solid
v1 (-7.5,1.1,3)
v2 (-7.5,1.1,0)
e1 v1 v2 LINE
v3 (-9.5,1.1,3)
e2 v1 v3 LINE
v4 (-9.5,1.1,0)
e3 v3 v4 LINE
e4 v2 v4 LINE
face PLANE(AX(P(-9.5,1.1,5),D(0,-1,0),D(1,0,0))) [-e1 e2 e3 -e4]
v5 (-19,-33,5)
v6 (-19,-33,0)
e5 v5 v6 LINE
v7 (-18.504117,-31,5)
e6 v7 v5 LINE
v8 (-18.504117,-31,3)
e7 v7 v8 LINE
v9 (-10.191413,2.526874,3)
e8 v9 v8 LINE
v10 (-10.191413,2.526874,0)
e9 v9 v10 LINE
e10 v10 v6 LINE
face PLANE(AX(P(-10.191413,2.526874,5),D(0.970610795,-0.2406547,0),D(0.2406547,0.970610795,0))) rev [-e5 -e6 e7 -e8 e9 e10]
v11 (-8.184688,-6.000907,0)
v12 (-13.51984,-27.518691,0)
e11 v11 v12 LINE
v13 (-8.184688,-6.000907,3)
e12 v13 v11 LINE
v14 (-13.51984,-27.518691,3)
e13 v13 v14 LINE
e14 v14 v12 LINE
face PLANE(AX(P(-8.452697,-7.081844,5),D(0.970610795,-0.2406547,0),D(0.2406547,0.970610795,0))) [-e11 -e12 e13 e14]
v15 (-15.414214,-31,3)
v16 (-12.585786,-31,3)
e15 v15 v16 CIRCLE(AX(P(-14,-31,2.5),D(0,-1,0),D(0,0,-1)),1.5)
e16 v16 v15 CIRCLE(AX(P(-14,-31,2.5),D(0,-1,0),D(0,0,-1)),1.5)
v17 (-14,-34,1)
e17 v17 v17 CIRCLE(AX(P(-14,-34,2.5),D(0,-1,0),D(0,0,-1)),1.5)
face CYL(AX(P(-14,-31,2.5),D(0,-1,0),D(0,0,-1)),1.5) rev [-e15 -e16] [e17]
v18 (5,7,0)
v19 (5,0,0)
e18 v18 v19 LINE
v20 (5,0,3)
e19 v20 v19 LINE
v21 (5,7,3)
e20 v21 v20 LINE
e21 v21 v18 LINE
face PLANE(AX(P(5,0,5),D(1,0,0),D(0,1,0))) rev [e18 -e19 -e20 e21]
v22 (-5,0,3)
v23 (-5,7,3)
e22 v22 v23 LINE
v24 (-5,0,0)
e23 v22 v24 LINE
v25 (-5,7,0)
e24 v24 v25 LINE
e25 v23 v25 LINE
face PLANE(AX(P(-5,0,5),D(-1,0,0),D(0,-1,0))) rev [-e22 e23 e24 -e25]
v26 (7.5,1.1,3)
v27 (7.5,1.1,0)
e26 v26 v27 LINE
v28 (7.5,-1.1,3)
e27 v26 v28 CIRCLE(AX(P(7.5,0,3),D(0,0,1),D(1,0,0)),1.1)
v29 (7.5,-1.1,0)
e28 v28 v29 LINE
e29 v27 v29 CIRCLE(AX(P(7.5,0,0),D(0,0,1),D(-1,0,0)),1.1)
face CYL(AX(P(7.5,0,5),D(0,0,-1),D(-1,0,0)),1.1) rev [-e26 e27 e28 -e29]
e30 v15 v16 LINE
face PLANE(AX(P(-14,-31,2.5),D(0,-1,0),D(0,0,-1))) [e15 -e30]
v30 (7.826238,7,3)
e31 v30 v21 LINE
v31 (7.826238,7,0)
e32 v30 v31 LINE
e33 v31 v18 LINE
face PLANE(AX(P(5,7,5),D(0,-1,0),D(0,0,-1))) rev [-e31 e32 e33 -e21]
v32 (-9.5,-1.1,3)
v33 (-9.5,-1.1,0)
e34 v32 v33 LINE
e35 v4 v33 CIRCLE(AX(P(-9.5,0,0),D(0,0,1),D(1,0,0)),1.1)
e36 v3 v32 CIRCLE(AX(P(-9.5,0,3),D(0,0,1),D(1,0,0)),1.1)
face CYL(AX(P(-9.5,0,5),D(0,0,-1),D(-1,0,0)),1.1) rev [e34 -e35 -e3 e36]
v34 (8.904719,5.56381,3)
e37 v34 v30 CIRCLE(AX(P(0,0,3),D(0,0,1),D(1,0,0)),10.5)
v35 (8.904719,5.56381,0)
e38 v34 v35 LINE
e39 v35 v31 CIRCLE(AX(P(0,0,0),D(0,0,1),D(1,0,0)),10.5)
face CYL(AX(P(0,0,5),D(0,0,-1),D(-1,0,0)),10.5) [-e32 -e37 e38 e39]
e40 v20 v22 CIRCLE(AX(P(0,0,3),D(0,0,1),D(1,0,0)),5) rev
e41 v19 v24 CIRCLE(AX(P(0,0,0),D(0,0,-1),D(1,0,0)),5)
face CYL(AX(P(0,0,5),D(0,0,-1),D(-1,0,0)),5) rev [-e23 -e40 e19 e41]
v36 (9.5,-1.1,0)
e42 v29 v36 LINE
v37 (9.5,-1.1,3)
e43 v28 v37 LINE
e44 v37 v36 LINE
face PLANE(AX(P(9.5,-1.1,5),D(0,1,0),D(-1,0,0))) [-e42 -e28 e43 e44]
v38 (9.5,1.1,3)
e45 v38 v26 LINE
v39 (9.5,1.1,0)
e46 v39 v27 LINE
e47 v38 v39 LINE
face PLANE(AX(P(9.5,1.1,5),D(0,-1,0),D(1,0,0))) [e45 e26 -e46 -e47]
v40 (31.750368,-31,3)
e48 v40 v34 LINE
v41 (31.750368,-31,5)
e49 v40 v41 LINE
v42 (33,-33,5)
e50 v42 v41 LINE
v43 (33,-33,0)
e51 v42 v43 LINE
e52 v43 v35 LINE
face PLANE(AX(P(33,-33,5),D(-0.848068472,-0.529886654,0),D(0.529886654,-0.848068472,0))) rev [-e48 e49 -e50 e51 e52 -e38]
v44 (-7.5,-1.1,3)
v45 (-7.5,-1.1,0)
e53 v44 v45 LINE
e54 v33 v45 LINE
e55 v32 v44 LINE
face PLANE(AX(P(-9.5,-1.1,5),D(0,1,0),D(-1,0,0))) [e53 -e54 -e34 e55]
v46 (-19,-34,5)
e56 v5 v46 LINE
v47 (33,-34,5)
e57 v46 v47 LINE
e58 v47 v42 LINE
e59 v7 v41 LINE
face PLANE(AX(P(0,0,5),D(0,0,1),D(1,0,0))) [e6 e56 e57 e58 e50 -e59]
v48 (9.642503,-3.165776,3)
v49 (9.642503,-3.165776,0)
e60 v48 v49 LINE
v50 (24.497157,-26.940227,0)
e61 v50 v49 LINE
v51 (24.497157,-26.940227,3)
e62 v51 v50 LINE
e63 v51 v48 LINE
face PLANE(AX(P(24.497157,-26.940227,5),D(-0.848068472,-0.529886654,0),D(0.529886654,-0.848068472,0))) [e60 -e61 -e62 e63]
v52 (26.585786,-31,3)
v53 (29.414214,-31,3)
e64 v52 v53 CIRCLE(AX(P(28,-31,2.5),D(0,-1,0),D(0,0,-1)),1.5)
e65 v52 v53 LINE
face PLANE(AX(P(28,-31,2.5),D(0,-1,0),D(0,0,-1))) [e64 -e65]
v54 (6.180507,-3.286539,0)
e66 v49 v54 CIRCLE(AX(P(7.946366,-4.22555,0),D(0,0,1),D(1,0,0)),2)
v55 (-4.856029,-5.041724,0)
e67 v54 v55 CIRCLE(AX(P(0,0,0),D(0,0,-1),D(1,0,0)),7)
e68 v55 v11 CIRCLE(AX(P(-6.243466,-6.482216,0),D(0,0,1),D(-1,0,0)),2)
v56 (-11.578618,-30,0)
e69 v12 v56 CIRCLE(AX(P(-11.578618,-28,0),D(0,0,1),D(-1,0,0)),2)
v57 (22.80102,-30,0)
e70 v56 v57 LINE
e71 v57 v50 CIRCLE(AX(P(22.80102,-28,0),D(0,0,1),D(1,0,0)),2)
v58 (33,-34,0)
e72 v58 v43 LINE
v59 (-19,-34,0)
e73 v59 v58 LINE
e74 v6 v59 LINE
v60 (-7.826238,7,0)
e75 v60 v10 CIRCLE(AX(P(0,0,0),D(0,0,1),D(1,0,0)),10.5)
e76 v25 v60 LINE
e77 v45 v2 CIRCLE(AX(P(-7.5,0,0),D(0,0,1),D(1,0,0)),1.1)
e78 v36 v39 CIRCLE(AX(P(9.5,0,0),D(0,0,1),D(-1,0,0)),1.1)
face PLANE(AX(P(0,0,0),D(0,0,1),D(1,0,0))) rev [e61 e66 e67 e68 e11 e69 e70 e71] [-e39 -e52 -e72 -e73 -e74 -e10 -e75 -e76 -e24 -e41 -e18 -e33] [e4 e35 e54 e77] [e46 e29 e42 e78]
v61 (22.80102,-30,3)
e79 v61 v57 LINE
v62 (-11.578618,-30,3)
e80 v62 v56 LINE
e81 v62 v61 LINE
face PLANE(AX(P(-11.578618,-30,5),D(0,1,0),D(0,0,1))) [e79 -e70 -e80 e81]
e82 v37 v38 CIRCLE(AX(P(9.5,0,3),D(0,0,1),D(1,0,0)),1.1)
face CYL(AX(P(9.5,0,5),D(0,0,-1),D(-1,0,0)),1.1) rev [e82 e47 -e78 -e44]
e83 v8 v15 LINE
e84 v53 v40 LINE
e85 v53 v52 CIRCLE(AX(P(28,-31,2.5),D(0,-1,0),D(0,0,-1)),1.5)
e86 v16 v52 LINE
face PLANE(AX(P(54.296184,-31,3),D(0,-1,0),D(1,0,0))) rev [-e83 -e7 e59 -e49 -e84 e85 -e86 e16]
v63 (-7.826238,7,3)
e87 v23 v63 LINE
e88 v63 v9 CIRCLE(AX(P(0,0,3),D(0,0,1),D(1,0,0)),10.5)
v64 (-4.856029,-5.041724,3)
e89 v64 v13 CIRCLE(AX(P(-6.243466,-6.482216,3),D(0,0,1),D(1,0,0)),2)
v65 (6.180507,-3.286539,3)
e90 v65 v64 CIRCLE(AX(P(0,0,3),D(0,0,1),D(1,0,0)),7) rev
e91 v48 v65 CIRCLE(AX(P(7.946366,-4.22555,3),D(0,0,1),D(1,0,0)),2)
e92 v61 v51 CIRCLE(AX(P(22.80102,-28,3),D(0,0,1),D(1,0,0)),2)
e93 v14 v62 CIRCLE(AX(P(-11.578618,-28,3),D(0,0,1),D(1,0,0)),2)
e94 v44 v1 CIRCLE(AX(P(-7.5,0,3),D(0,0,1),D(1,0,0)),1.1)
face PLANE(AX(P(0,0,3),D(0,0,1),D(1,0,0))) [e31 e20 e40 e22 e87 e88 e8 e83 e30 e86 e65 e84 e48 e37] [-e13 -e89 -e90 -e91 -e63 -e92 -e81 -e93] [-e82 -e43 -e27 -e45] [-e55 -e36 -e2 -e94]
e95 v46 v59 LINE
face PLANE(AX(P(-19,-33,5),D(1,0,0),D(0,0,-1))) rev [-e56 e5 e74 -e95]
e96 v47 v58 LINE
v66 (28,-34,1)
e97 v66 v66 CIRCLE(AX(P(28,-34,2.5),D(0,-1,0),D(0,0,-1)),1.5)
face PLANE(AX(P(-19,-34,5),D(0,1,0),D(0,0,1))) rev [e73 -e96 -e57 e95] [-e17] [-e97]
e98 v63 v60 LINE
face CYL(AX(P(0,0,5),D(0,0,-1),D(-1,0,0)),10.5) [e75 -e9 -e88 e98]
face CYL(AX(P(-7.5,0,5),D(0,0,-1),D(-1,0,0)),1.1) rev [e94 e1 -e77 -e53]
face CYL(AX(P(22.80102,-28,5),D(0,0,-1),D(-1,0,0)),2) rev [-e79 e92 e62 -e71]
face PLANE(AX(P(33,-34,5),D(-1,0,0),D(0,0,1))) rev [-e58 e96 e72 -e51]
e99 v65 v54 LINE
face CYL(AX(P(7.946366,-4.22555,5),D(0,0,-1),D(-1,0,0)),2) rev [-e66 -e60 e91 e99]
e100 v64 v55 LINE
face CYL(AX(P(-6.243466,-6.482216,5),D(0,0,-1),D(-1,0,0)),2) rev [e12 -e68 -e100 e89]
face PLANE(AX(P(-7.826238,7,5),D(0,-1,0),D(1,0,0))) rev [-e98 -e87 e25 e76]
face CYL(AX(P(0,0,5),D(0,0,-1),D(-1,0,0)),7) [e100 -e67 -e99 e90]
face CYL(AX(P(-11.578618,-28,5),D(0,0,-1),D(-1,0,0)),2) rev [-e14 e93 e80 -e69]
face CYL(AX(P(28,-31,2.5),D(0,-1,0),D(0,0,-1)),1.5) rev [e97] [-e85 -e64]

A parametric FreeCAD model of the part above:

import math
import FreeCAD as App
import Part
import Sketcher
from FreeCAD import Vector
Q = App.Units.Quantity


def add_polygon(sketch, points):
    """Adds a closed chain of lines whose ends are joined by coincident constraints."""
    first, n = sketch.GeometryCount, len(points)
    for a, b in zip(points, points[1:] + points[:1]):
        sketch.addGeometry(Part.LineSegment(App.Vector(*a, 0), App.Vector(*b, 0)), False)
    for i in range(n):
        sketch.addConstraint(Sketcher.Constraint("Coincident", first + i, 2, first + (i + 1) % n, 1))

doc = App.newDocument("Part")
params = doc.addObject("Spreadsheet::Sheet", "Params")
for row, (alias, value) in enumerate([
    ("sketch1_radius", "5 mm"),
    ("sketch1_radius2", "2 mm"),
    ("sketch1_radius3", "7 mm"),
    ("sketch1_radius4", "10.5 mm"),
    ("sketch1_radius5", "1.1 mm"),
    ("pad1_length", "5 mm"),
    ("pocket1_length", "2 mm"),
    ("sketch3_diameter", "3 mm"),
    ("pocket2_length", "3 mm"),
], start=1):
    params.set(f"A{row}", alias)
    params.set(f"B{row}", "=" + value)
    params.setAlias(f"B{row}", alias)

body = doc.addObject("PartDesign::Body", "Body")

sketch1 = body.newObject("Sketcher::SketchObject", "Sketch")
sketch1.AttachmentSupport = (doc.getObject("XY_Plane"), [""])
sketch1.MapMode = "FlatFace"
sketch1.addGeometry([
    Part.LineSegment(Vector(-10.191413, 2.526874, 0), Vector(-19, -33, 0)),
    Part.LineSegment(Vector(-19, -33, 0), Vector(-19, -34, 0)),
    Part.LineSegment(Vector(-19, -34, 0), Vector(33, -34, 0)),
    Part.LineSegment(Vector(33, -34, 0), Vector(33, -33, 0)),
    Part.LineSegment(Vector(33, -33, 0), Vector(8.904719, 5.56381, 0)),
    Part.ArcOfCircle(Part.Circle(Vector(0, 0, 0), Vector(0, 0, 1), 10.5), math.radians(31.997797), math.radians(41.810315)),
    Part.LineSegment(Vector(7.826238, 7, 0), Vector(5, 7, 0)),
    Part.LineSegment(Vector(5, 7, 0), Vector(5, 0, 0)),
    Part.ArcOfCircle(Part.Circle(Vector(0, 0, 0), Vector(0, 0, 1), 5), math.radians(180), math.radians(360)),
    Part.LineSegment(Vector(-5, 0, 0), Vector(-5, 7, 0)),
    Part.LineSegment(Vector(-5, 7, 0), Vector(-7.826238, 7, 0)),
    Part.ArcOfCircle(Part.Circle(Vector(0, 0, 0), Vector(0, 0, 1), 10.5), math.radians(138.189685), math.radians(166.074815)),
    Part.LineSegment(Vector(-13.51984, -27.518691, 0), Vector(-8.452697, -7.081844, 0)),
    Part.LineSegment(Vector(-8.452697, -7.081844, 0), Vector(-8.184688, -6.000907, 0)),
    Part.ArcOfCircle(Part.Circle(Vector(-6.243466, -6.482216, 0), Vector(0, 0, 1), 2), math.radians(46.074816), math.radians(166.074815)),
    Part.ArcOfCircle(Part.Circle(Vector(0, 0, 0), Vector(0, 0, 1), 7), math.radians(-133.925185), math.radians(-28.002203)),
    Part.ArcOfCircle(Part.Circle(Vector(7.946366, -4.22555, 0), Vector(0, 0, 1), 2), math.radians(31.997797), math.radians(151.997797)),
    Part.LineSegment(Vector(9.642503, -3.165776, 0), Vector(24.497157, -26.940227, 0)),
    Part.ArcOfCircle(Part.Circle(Vector(22.80102, -28, 0), Vector(0, 0, 1), 2), math.radians(-90), math.radians(31.997797)),
    Part.LineSegment(Vector(22.80102, -30, 0), Vector(-11.578618, -30, 0)),
    Part.ArcOfCircle(Part.Circle(Vector(-11.578618, -28, 0), Vector(0, 0, 1), 2), math.radians(166.074815), math.radians(270)),
    Part.ArcOfCircle(Part.Circle(Vector(-9.5, 0, 0), Vector(0, 0, 1), 1.1), math.radians(90), math.radians(270)),
    Part.LineSegment(Vector(-9.5, 1.1, 0), Vector(-7.5, 1.1, 0)),
    Part.ArcOfCircle(Part.Circle(Vector(-7.5, 0, 0), Vector(0, 0, 1), 1.1), math.radians(-90), math.radians(90)),
    Part.LineSegment(Vector(-7.5, -1.1, 0), Vector(-9.5, -1.1, 0)),
    Part.ArcOfCircle(Part.Circle(Vector(9.5, 0, 0), Vector(0, 0, 1), 1.1), math.radians(-90), math.radians(90)),
    Part.LineSegment(Vector(9.5, -1.1, 0), Vector(7.5, -1.1, 0)),
    Part.ArcOfCircle(Part.Circle(Vector(7.5, 0, 0), Vector(0, 0, 1), 1.1), math.radians(90), math.radians(270)),
    Part.LineSegment(Vector(7.5, 1.1, 0), Vector(9.5, 1.1, 0)),
], False)
sketch1.addConstraint([
    Sketcher.Constraint("Coincident", 0, 2, 1, 1),
    Sketcher.Constraint("Coincident", 1, 2, 2, 1),
    Sketcher.Constraint("Coincident", 2, 2, 3, 1),
    Sketcher.Constraint("Coincident", 3, 2, 4, 1),
    Sketcher.Constraint("Tangent", 4, 2, 5, 1),
    Sketcher.Constraint("Coincident", 5, 2, 6, 1),
    Sketcher.Constraint("Coincident", 6, 2, 7, 1),
    Sketcher.Constraint("Tangent", 7, 2, 8, 2),
    Sketcher.Constraint("Tangent", 8, 1, 9, 1),
    Sketcher.Constraint("Coincident", 9, 2, 10, 1),
    Sketcher.Constraint("Coincident", 10, 2, 11, 1),
    Sketcher.Constraint("Tangent", 11, 2, 0, 1),
    Sketcher.Constraint("Coincident", 12, 2, 13, 1),
    Sketcher.Constraint("Tangent", 13, 2, 14, 2),
    Sketcher.Constraint("Tangent", 14, 1, 15, 1),
    Sketcher.Constraint("Tangent", 15, 2, 16, 2),
    Sketcher.Constraint("Tangent", 16, 1, 17, 1),
    Sketcher.Constraint("Tangent", 17, 2, 18, 2),
    Sketcher.Constraint("Tangent", 18, 1, 19, 1),
    Sketcher.Constraint("Tangent", 19, 2, 20, 2),
    Sketcher.Constraint("Tangent", 20, 1, 12, 1),
    Sketcher.Constraint("Tangent", 21, 1, 22, 1),
    Sketcher.Constraint("Tangent", 22, 2, 23, 2),
    Sketcher.Constraint("Tangent", 23, 1, 24, 1),
    Sketcher.Constraint("Tangent", 24, 2, 21, 2),
    Sketcher.Constraint("Tangent", 25, 1, 26, 1),
    Sketcher.Constraint("Tangent", 26, 2, 27, 2),
    Sketcher.Constraint("Tangent", 27, 1, 28, 1),
    Sketcher.Constraint("Tangent", 28, 2, 25, 2),
    Sketcher.Constraint("Vertical", 1),
    Sketcher.Constraint("Horizontal", 2),
    Sketcher.Constraint("Vertical", 3),
    Sketcher.Constraint("Horizontal", 6),
    Sketcher.Constraint("Vertical", 7),
    Sketcher.Constraint("Vertical", 9),
    Sketcher.Constraint("Horizontal", 10),
    Sketcher.Constraint("Horizontal", 19),
    Sketcher.Constraint("Horizontal", 22),
    Sketcher.Constraint("Horizontal", 24),
    Sketcher.Constraint("Horizontal", 26),
    Sketcher.Constraint("Horizontal", 28),
    Sketcher.Constraint("Coincident", 5, 3, -1, 1),
    Sketcher.Constraint("Coincident", 8, 3, -1, 1),
    Sketcher.Constraint("Coincident", 11, 3, -1, 1),
    Sketcher.Constraint("Coincident", 15, 3, -1, 1),
    Sketcher.Constraint("Equal", 5, 11),
    Sketcher.Constraint("Equal", 14, 16),
    Sketcher.Constraint("Equal", 16, 18),
    Sketcher.Constraint("Equal", 18, 20),
    Sketcher.Constraint("Equal", 23, 25),
    Sketcher.Constraint("Symmetric", 21, 3, 25, 3, -1, 1),
    Sketcher.Constraint("Symmetric", 23, 3, 27, 3, -2),
    Sketcher.Constraint("Parallel", 0, 12),
    Sketcher.Constraint("Parallel", 12, 13),
    Sketcher.Constraint("Parallel", 4, 17),
    Sketcher.Constraint("Horizontal", 0, 2, 3, 2),
    Sketcher.Constraint("Horizontal", 6, 2, 9, 2),
    Sketcher.Constraint("Radius", 8, Q("5 mm")),
    Sketcher.Constraint("Radius", 14, Q("2 mm")),
    Sketcher.Constraint("Radius", 15, Q("7 mm")),
    Sketcher.Constraint("Radius", 5, Q("10.5 mm")),
    Sketcher.Constraint("Radius", 21, Q("1.1 mm")),
    Sketcher.Constraint("DistanceX", 2, 1, 2, 2, Q("52 mm")),
    Sketcher.Constraint("DistanceX", 22, 1, 22, 2, Q("2 mm")),
    Sketcher.Constraint("DistanceY", 1, 2, 1, 1, Q("1 mm")),
    Sketcher.Constraint("DistanceY", 7, 2, 7, 1, Q("7 mm")),
    Sketcher.Constraint("DistanceY", 18, 3, -1, 1, Q("28 mm")),
    Sketcher.Constraint("DistanceX", 0, 2, -1, 1, Q("19 mm")),
    Sketcher.Constraint("DistanceY", 0, 2, -1, 1, Q("33 mm")),
    Sketcher.Constraint("DistanceX", 21, 3, -1, 1, Q("9.5 mm")),
    Sketcher.Constraint("DistanceX", 19, 2, 19, 1, Q("34.379638 mm")),
    Sketcher.Constraint("DistanceY", 16, 3, -1, 1, Q("4.22555 mm")),
    Sketcher.Constraint("DistanceX", 12, 2, 14, 3, Q("2.209231 mm")),
])
sketch1.setExpression("Constraints[57]", "Params.sketch1_radius")
sketch1.setExpression("Constraints[58]", "Params.sketch1_radius2")
sketch1.setExpression("Constraints[59]", "Params.sketch1_radius3")
sketch1.setExpression("Constraints[60]", "Params.sketch1_radius4")
sketch1.setExpression("Constraints[61]", "Params.sketch1_radius5")
pad1 = body.newObject("PartDesign::Pad", "Pad")
pad1.Profile = sketch1
pad1.setExpression("Length", "Params.pad1_length")

sketch2 = body.newObject("Sketcher::SketchObject", "Sketch001")
sketch2.AttachmentSupport = (doc.getObject("XY_Plane"), [""])
sketch2.MapMode = "FlatFace"
sketch2.AttachmentOffset = App.Placement(Vector(0, 0, 5), App.Rotation())
add_polygon(sketch2, [(-51.294482, 22.734325), (-51.294482, -31), (54.296184, -31), (54.296184, 22.734325)])
sketch2.addConstraint([
    Sketcher.Constraint("Vertical", 0),
    Sketcher.Constraint("Horizontal", 1),
    Sketcher.Constraint("Vertical", 2),
    Sketcher.Constraint("Horizontal", 3),
    Sketcher.Constraint("DistanceY", 0, 2, -1, 1, Q("31 mm")),
    Sketcher.Constraint("DistanceX", 1, 1, 1, 2, Q("105.590666 mm")),
    Sketcher.Constraint("DistanceY", 0, 2, 0, 1, Q("53.734325 mm")),
    Sketcher.Constraint("DistanceX", 0, 2, -1, 1, Q("51.294482 mm")),
])
pocket1 = body.newObject("PartDesign::Pocket", "Pocket")
pocket1.Profile = sketch2
pocket1.setExpression("Length", "Params.pocket1_length")

sketch3 = body.newObject("Sketcher::SketchObject", "Sketch002")
sketch3.AttachmentSupport = (doc.getObject("XZ_Plane"), [""])
sketch3.MapMode = "FlatFace"
sketch3.AttachmentOffset = App.Placement(Vector(0, 0, 34), App.Rotation())
sketch3.addGeometry([
    Part.Circle(Vector(-14, 2.5, 0), Vector(0, 0, 1), 1.5),
    Part.Circle(Vector(28, 2.5, 0), Vector(0, 0, 1), 1.5),
], False)
sketch3.addConstraint([
    Sketcher.Constraint("Equal", 0, 1),
    Sketcher.Constraint("Horizontal", 0, 3, 1, 3),
    Sketcher.Constraint("Diameter", 0, Q("3 mm")),
    Sketcher.Constraint("DistanceX", 0, 3, -1, 1, Q("14 mm")),
    Sketcher.Constraint("DistanceX", -1, 1, 1, 3, Q("28 mm")),
    Sketcher.Constraint("DistanceY", -1, 1, 0, 3, Q("2.5 mm")),
])
sketch3.setExpression("Constraints[2]", "Params.sketch3_diameter")
pocket2 = body.newObject("PartDesign::Pocket", "Pocket001")
pocket2.Profile = sketch3
pocket2.setExpression("Length", "Params.pocket2_length")

doc.recompute()
